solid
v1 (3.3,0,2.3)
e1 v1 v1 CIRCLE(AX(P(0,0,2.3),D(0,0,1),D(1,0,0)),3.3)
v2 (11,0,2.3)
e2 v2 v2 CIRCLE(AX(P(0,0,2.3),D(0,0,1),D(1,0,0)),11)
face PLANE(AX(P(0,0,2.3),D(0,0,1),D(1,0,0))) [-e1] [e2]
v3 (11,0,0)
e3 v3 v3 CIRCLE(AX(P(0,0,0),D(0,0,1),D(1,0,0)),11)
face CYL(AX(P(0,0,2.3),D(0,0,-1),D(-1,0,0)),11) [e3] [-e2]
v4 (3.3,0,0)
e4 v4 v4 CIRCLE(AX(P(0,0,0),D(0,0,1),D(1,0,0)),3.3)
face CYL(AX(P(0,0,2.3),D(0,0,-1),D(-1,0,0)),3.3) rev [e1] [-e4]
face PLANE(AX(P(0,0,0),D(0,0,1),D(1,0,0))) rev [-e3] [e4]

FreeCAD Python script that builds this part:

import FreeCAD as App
import Part
import Sketcher
from FreeCAD import Vector
Q = App.Units.Quantity

doc = App.newDocument("Part")
body = doc.addObject("PartDesign::Body", "Body")

sketch1 = body.newObject("Sketcher::SketchObject", "Sketch")
sketch1.AttachmentSupport = (doc.getObject("XY_Plane"), [""])
sketch1.MapMode = "FlatFace"
sketch1.addGeometry([
    Part.Circle(Vector(0, 0, 0), Vector(0, 0, 1), 11),
    Part.Circle(Vector(0, 0, 0), Vector(0, 0, 1), 3.3),
], False)
sketch1.addConstraint([
    Sketcher.Constraint("Coincident", 0, 3, -1, 1),
    Sketcher.Constraint("Coincident", 1, 3, -1, 1),
    Sketcher.Constraint("Diameter", 0, Q("22 mm")),
    Sketcher.Constraint("Diameter", 1, Q("6.6 mm")),
])
pad1 = body.newObject("PartDesign::Pad", "Pad")
pad1.Profile = sketch1
pad1.Length = 2.3

doc.recompute()
